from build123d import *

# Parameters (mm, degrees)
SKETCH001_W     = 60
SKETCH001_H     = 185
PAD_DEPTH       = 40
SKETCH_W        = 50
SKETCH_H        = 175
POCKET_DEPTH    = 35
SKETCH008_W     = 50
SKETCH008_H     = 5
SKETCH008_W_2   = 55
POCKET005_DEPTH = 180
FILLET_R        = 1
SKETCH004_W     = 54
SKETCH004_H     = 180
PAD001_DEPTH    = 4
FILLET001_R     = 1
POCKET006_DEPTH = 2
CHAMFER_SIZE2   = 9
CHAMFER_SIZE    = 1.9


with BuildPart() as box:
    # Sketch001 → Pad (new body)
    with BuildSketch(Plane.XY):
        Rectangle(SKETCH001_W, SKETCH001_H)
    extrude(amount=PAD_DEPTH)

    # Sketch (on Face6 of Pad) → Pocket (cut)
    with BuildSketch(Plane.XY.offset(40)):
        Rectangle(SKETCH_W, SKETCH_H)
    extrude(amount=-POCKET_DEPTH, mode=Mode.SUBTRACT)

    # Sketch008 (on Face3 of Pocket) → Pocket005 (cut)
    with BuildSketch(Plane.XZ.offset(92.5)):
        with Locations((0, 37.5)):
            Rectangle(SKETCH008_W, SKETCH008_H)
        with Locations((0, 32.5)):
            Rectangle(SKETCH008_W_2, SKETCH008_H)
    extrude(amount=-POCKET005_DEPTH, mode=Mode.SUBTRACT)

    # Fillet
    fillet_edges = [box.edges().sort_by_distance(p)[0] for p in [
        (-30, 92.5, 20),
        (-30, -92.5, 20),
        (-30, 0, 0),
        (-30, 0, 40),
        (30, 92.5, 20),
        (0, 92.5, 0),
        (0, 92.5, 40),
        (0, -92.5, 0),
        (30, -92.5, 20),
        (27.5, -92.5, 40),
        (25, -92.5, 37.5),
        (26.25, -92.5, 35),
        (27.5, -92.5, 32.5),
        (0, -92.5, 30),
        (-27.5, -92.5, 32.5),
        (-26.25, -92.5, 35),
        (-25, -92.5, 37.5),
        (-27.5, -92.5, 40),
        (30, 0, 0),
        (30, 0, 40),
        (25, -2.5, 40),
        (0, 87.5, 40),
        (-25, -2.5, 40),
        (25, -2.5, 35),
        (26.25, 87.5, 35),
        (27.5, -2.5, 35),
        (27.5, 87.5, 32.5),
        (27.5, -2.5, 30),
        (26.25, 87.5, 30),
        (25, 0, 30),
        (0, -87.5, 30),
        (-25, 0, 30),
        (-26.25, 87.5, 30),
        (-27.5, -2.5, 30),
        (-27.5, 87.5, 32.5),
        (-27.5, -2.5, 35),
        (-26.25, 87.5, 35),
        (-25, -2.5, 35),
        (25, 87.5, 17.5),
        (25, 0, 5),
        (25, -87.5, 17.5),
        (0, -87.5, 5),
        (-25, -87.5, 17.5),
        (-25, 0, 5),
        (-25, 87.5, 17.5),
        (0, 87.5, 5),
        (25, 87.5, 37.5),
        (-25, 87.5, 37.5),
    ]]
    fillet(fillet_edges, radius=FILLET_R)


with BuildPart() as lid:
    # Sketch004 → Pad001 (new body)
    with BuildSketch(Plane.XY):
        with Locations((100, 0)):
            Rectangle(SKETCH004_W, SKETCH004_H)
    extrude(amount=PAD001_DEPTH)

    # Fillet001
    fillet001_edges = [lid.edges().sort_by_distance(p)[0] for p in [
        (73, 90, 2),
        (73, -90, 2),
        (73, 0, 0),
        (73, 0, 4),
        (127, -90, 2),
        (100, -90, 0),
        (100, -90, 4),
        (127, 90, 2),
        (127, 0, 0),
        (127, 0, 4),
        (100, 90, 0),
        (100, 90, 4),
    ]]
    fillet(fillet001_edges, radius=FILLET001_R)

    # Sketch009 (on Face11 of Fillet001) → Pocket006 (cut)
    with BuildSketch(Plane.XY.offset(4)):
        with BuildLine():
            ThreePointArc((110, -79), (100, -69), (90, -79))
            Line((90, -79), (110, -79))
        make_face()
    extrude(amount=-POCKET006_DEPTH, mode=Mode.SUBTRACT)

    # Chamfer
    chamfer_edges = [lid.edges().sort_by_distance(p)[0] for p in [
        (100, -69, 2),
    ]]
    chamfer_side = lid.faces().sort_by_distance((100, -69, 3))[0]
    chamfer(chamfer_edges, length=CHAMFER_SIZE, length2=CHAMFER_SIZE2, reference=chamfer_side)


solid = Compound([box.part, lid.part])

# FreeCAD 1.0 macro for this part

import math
import FreeCAD as App
import Part
import Sketcher
from FreeCAD import Vector
Q = App.Units.Quantity


def edges_at(feature, points):
    """Names of the edges that pass closest to the given points."""
    edges = feature.Shape.Edges
    near = lambda p: min(range(len(edges)), key=lambda i: edges[i].distToShape(Part.Vertex(*p))[0])
    return sorted({f"Edge{near(p) + 1}" for p in points})


def add_polygon(sketch, points):
    """Adds a closed chain of lines whose ends are joined by coincident constraints."""
    first, n = sketch.GeometryCount, len(points)
    for a, b in zip(points, points[1:] + points[:1]):
        sketch.addGeometry(Part.LineSegment(App.Vector(*a, 0), App.Vector(*b, 0)), False)
    for i in range(n):
        sketch.addConstraint(Sketcher.Constraint("Coincident", first + i, 2, first + (i + 1) % n, 1))

doc = App.newDocument("Part")
body = doc.addObject("PartDesign::Body", "Body")

# Sketch on XY plane
sketch1 = doc.addObject("Sketcher::SketchObject", "Sketch")
body.addObject(sketch1)
sketch1.AttachmentSupport = (doc.XY_Plane, [""])
sketch1.MapMode = "FlatFace"
add_polygon(sketch1, [(-30, 92), (-30, -92), (30, -92), (30, 92)])  # lines 0-3
sketch1.addConstraint(Sketcher.Constraint("Vertical", 0))
sketch1.addConstraint(Sketcher.Constraint("Horizontal", 1))
sketch1.addConstraint(Sketcher.Constraint("Vertical", 2))
sketch1.addConstraint(Sketcher.Constraint("Horizontal", 3))
sketch1.addConstraint(Sketcher.Constraint("Symmetric", 0, 2, 2, 2, -1, 1))
sketch1.addConstraint(Sketcher.Constraint("DistanceX", 1, 1, 1, 2, Q("60 mm")))
sketch1.addConstraint(Sketcher.Constraint("DistanceY", 0, 2, 0, 1, Q("185 mm")))
pad1 = doc.addObject("PartDesign::Pad", "Pad")
body.addObject(pad1)
pad1.Profile = sketch1
pad1.Length = 40

# Sketch on XY plane
sketch2 = doc.addObject("Sketcher::SketchObject", "Sketch001")
body.addObject(sketch2)
sketch2.AttachmentSupport = (doc.XY_Plane, [""])
sketch2.MapMode = "FlatFace"
sketch2.AttachmentOffset = App.Placement(Vector(0, 0, 40), App.Rotation())
add_polygon(sketch2, [(-25, 88), (-25, -88), (25, -88), (25, 88)])  # lines 0-3
sketch2.addConstraint(Sketcher.Constraint("Vertical", 0))
sketch2.addConstraint(Sketcher.Constraint("Horizontal", 1))
sketch2.addConstraint(Sketcher.Constraint("Vertical", 2))
sketch2.addConstraint(Sketcher.Constraint("Horizontal", 3))
sketch2.addConstraint(Sketcher.Constraint("Symmetric", 0, 2, 2, 2, -1, 1))
sketch2.addConstraint(Sketcher.Constraint("DistanceX", 1, 1, 1, 2, Q("50 mm")))
sketch2.addConstraint(Sketcher.Constraint("DistanceY", 0, 2, 0, 1, Q("175 mm")))
pocket1 = doc.addObject("PartDesign::Pocket", "Pocket")
body.addObject(pocket1)
pocket1.Profile = sketch2
pocket1.Length = 35

# Sketch on XZ plane
sketch3 = doc.addObject("Sketcher::SketchObject", "Sketch002")
body.addObject(sketch3)
sketch3.AttachmentSupport = (doc.XZ_Plane, [""])
sketch3.MapMode = "FlatFace"
sketch3.AttachmentOffset = App.Placement(Vector(0, 0, 92.5), App.Rotation())
add_polygon(sketch3, [(-25, 40), (-25, 35), (-27.5, 35), (-27.5, 30), (27.5, 30), (27.5, 35), (25, 35), (25, 40)])  # lines 0-7
sketch3.addConstraint(Sketcher.Constraint("Vertical", 0))
sketch3.addConstraint(Sketcher.Constraint("Horizontal", 1))
sketch3.addConstraint(Sketcher.Constraint("Vertical", 2))
sketch3.addConstraint(Sketcher.Constraint("Horizontal", 3))
sketch3.addConstraint(Sketcher.Constraint("Vertical", 4))
sketch3.addConstraint(Sketcher.Constraint("Horizontal", 5))
sketch3.addConstraint(Sketcher.Constraint("Vertical", 6))
sketch3.addConstraint(Sketcher.Constraint("Horizontal", 7))
sketch3.addConstraint(Sketcher.Constraint("Symmetric", 1, 2, 4, 2, -2))
sketch3.addConstraint(Sketcher.Constraint("Equal", 1, 5))
sketch3.addConstraint(Sketcher.Constraint("Equal", 0, 2))
sketch3.addConstraint(Sketcher.Constraint("DistanceX", 3, 1, 3, 2, Q("55 mm")))
sketch3.addConstraint(Sketcher.Constraint("DistanceX", 7, 2, 7, 1, Q("50 mm")))
sketch3.addConstraint(Sketcher.Constraint("DistanceY", 0, 2, 0, 1, Q("5 mm")))
sketch3.addConstraint(Sketcher.Constraint("DistanceY", -1, 1, 0, 2, Q("35 mm")))
pocket2 = doc.addObject("PartDesign::Pocket", "Pocket001")
body.addObject(pocket2)
pocket2.Profile = sketch3
pocket2.Length = 180
doc.recompute()

fillet = doc.addObject("PartDesign::Fillet", "Fillet")
body.addObject(fillet)
fillet.Base = (pocket2, ["Edge1"])
fillet.UseAllEdges = True
fillet.Radius = 1
body2 = doc.addObject("PartDesign::Body", "Body001")

# Sketch on XY plane
sketch4 = doc.addObject("Sketcher::SketchObject", "Sketch003")
body2.addObject(sketch4)
sketch4.AttachmentSupport = (doc.getObject("XY_Plane001"), [""])
sketch4.MapMode = "FlatFace"
add_polygon(sketch4, [(73, 90), (73, -90), (127, -90), (127, 90)])  # lines 0-3
sketch4.addConstraint(Sketcher.Constraint("Vertical", 0))
sketch4.addConstraint(Sketcher.Constraint("Horizontal", 1))
sketch4.addConstraint(Sketcher.Constraint("Vertical", 2))
sketch4.addConstraint(Sketcher.Constraint("Horizontal", 3))
sketch4.addConstraint(Sketcher.Constraint("DistanceX", 1, 1, 1, 2, Q("54 mm")))
sketch4.addConstraint(Sketcher.Constraint("DistanceY", 0, 2, 0, 1, Q("180 mm")))
sketch4.addConstraint(Sketcher.Constraint("DistanceX", -1, 1, 0, 2, Q("73 mm")))
sketch4.addConstraint(Sketcher.Constraint("DistanceY", 0, 2, -1, 1, Q("90 mm")))
pad2 = doc.addObject("PartDesign::Pad", "Pad001")
body2.addObject(pad2)
pad2.Profile = sketch4
pad2.Length = 4
doc.recompute()

fillet2 = doc.addObject("PartDesign::Fillet", "Fillet001")
body2.addObject(fillet2)
fillet2.Base = (pad2, ["Edge1"])
fillet2.UseAllEdges = True
fillet2.Radius = 1

# Sketch on XY plane
sketch5 = doc.addObject("Sketcher::SketchObject", "Sketch004")
body2.addObject(sketch5)
sketch5.AttachmentSupport = (doc.getObject("XY_Plane001"), [""])
sketch5.MapMode = "FlatFace"
sketch5.AttachmentOffset = App.Placement(Vector(0, 0, 4), App.Rotation())
sketch5.addGeometry(Part.ArcOfCircle(Part.Circle(Vector(100, -79, 0), Vector(0, 0, 1), 10), math.radians(0), math.radians(180)), False)
sketch5.addGeometry(Part.LineSegment(Vector(90, -79, 0), Vector(110, -79, 0)), False)
sketch5.addConstraint(Sketcher.Constraint("Coincident", 0, 1, 1, 2))
sketch5.addConstraint(Sketcher.Constraint("Coincident", 1, 1, 0, 2))
sketch5.addConstraint(Sketcher.Constraint("Horizontal", 1))
sketch5.addConstraint(Sketcher.Constraint("Radius", 0, Q("10 mm")))
sketch5.addConstraint(Sketcher.Constraint("DistanceX", -1, 1, 0, 3, Q("100 mm")))
sketch5.addConstraint(Sketcher.Constraint("DistanceY", 0, 3, -1, 1, Q("79 mm")))
sketch5.addConstraint(Sketcher.Constraint("DistanceY", 0, 1, -1, 1, Q("79 mm")))
pocket3 = doc.addObject("PartDesign::Pocket", "Pocket002")
body2.addObject(pocket3)
pocket3.Profile = sketch5
pocket3.Length = 2
doc.recompute()

chamfer = doc.addObject("PartDesign::Chamfer", "Chamfer")
body2.addObject(chamfer)
chamfer.Base = (pocket3, edges_at(pocket3, [(100, -69, 2)]))
chamfer.ChamferType = "Two distances"
chamfer.Size = 1.9
chamfer.Size2 = 9

doc.recompute()
